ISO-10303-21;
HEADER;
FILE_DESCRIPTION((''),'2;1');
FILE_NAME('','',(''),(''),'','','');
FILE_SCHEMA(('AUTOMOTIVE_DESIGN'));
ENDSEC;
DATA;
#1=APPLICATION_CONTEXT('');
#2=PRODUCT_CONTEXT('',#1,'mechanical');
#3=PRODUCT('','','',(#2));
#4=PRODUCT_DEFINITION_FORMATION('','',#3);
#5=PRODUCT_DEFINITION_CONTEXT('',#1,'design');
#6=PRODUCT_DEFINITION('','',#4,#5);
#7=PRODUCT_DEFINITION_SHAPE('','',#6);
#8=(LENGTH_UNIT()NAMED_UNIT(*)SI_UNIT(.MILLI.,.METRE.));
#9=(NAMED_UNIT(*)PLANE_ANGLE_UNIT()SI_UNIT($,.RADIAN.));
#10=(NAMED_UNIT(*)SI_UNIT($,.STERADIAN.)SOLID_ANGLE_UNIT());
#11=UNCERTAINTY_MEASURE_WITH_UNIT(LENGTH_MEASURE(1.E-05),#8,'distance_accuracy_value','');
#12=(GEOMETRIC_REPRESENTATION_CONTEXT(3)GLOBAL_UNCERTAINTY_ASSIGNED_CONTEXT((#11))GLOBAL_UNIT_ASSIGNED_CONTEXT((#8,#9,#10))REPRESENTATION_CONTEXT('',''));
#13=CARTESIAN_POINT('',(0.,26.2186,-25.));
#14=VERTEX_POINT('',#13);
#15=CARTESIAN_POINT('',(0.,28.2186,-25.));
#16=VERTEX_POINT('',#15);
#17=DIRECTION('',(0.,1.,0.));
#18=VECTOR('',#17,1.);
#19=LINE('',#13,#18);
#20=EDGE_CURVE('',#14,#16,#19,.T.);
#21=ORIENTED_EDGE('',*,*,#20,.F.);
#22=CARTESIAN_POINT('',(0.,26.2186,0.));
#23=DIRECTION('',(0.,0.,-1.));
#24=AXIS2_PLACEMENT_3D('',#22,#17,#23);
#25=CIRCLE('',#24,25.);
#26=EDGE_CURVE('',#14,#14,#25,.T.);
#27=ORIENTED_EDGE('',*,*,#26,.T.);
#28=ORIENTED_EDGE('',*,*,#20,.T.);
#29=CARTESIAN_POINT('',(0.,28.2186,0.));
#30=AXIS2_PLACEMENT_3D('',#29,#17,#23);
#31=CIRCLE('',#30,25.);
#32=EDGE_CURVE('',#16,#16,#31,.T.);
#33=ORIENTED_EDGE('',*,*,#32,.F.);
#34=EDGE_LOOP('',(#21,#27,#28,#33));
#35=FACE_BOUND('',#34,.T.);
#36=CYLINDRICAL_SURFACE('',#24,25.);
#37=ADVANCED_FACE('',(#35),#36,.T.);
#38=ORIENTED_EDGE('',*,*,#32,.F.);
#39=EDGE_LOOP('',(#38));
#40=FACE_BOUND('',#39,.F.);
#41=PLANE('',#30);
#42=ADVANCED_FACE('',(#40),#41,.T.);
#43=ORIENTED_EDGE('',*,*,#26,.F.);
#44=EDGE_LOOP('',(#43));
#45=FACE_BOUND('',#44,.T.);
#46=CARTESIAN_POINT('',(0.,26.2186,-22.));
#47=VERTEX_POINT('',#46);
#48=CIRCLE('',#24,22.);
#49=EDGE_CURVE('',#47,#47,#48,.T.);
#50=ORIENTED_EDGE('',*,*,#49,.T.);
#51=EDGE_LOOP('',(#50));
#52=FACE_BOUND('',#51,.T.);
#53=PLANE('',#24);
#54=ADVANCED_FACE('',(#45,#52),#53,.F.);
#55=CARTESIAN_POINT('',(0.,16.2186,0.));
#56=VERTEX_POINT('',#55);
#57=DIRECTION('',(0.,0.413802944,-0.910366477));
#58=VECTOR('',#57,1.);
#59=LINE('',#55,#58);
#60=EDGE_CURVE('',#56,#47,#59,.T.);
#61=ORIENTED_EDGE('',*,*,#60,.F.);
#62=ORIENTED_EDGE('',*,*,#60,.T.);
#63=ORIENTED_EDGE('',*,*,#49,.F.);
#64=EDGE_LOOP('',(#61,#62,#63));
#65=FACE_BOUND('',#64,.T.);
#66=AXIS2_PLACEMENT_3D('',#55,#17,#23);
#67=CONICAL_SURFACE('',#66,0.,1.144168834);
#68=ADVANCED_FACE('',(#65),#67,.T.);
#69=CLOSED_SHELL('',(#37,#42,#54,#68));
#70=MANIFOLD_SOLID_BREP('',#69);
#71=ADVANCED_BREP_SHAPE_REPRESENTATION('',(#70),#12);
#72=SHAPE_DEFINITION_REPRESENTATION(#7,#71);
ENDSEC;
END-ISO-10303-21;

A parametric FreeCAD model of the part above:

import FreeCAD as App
import Part
import Sketcher

V = App.Vector


def add_polygon(sketch, points):
    """Adds a closed chain of lines whose ends are joined by coincident constraints."""
    first, n = sketch.GeometryCount, len(points)
    for a, b in zip(points, points[1:] + points[:1]):
        sketch.addGeometry(Part.LineSegment(App.Vector(*a, 0), App.Vector(*b, 0)), False)
    for i in range(n):
        sketch.addConstraint(Sketcher.Constraint("Coincident", first + i, 2, first + (i + 1) % n, 1))

doc = App.newDocument("Part")
body = doc.addObject("PartDesign::Body", "Body")

# Sketch on YZ plane
sketch1 = body.newObject("Sketcher::SketchObject", "Sketch")
sketch1.AttachmentSupport = (doc.getObject("YZ_Plane"), [""])
sketch1.MapMode = "FlatFace"
add_polygon(sketch1, [(28.2186, 0), (16.2186, 0), (26.2186, -22), (26.2186, -25), (28.2186, -25)])  # lines 0-4
sketch1.addConstraint([
    Sketcher.Constraint("Horizontal", 0),
    Sketcher.Constraint("Vertical", 2),
    Sketcher.Constraint("Horizontal", 3),
    Sketcher.Constraint("Vertical", 4),
    Sketcher.Constraint("PointOnObject", 0, 2, -1),
    Sketcher.Constraint("DistanceX", 3, 1, 3, 2, 2.0),
    Sketcher.Constraint("DistanceY", 2, 2, 2, 1, 3.0),
    Sketcher.Constraint("DistanceX", 0, 2, 1, 2, 10.0),
    Sketcher.Constraint("DistanceY", 4, 1, 4, 2, 25.0),
    Sketcher.Constraint("DistanceX", -1, 1, 1, 2, 26.2186),
])
revolution = body.newObject("PartDesign::Revolution", "Revolution")
revolution.Profile = sketch1
revolution.ReferenceAxis = (sketch1, ["H_Axis"])
revolution.Angle = 360

doc.recompute()
